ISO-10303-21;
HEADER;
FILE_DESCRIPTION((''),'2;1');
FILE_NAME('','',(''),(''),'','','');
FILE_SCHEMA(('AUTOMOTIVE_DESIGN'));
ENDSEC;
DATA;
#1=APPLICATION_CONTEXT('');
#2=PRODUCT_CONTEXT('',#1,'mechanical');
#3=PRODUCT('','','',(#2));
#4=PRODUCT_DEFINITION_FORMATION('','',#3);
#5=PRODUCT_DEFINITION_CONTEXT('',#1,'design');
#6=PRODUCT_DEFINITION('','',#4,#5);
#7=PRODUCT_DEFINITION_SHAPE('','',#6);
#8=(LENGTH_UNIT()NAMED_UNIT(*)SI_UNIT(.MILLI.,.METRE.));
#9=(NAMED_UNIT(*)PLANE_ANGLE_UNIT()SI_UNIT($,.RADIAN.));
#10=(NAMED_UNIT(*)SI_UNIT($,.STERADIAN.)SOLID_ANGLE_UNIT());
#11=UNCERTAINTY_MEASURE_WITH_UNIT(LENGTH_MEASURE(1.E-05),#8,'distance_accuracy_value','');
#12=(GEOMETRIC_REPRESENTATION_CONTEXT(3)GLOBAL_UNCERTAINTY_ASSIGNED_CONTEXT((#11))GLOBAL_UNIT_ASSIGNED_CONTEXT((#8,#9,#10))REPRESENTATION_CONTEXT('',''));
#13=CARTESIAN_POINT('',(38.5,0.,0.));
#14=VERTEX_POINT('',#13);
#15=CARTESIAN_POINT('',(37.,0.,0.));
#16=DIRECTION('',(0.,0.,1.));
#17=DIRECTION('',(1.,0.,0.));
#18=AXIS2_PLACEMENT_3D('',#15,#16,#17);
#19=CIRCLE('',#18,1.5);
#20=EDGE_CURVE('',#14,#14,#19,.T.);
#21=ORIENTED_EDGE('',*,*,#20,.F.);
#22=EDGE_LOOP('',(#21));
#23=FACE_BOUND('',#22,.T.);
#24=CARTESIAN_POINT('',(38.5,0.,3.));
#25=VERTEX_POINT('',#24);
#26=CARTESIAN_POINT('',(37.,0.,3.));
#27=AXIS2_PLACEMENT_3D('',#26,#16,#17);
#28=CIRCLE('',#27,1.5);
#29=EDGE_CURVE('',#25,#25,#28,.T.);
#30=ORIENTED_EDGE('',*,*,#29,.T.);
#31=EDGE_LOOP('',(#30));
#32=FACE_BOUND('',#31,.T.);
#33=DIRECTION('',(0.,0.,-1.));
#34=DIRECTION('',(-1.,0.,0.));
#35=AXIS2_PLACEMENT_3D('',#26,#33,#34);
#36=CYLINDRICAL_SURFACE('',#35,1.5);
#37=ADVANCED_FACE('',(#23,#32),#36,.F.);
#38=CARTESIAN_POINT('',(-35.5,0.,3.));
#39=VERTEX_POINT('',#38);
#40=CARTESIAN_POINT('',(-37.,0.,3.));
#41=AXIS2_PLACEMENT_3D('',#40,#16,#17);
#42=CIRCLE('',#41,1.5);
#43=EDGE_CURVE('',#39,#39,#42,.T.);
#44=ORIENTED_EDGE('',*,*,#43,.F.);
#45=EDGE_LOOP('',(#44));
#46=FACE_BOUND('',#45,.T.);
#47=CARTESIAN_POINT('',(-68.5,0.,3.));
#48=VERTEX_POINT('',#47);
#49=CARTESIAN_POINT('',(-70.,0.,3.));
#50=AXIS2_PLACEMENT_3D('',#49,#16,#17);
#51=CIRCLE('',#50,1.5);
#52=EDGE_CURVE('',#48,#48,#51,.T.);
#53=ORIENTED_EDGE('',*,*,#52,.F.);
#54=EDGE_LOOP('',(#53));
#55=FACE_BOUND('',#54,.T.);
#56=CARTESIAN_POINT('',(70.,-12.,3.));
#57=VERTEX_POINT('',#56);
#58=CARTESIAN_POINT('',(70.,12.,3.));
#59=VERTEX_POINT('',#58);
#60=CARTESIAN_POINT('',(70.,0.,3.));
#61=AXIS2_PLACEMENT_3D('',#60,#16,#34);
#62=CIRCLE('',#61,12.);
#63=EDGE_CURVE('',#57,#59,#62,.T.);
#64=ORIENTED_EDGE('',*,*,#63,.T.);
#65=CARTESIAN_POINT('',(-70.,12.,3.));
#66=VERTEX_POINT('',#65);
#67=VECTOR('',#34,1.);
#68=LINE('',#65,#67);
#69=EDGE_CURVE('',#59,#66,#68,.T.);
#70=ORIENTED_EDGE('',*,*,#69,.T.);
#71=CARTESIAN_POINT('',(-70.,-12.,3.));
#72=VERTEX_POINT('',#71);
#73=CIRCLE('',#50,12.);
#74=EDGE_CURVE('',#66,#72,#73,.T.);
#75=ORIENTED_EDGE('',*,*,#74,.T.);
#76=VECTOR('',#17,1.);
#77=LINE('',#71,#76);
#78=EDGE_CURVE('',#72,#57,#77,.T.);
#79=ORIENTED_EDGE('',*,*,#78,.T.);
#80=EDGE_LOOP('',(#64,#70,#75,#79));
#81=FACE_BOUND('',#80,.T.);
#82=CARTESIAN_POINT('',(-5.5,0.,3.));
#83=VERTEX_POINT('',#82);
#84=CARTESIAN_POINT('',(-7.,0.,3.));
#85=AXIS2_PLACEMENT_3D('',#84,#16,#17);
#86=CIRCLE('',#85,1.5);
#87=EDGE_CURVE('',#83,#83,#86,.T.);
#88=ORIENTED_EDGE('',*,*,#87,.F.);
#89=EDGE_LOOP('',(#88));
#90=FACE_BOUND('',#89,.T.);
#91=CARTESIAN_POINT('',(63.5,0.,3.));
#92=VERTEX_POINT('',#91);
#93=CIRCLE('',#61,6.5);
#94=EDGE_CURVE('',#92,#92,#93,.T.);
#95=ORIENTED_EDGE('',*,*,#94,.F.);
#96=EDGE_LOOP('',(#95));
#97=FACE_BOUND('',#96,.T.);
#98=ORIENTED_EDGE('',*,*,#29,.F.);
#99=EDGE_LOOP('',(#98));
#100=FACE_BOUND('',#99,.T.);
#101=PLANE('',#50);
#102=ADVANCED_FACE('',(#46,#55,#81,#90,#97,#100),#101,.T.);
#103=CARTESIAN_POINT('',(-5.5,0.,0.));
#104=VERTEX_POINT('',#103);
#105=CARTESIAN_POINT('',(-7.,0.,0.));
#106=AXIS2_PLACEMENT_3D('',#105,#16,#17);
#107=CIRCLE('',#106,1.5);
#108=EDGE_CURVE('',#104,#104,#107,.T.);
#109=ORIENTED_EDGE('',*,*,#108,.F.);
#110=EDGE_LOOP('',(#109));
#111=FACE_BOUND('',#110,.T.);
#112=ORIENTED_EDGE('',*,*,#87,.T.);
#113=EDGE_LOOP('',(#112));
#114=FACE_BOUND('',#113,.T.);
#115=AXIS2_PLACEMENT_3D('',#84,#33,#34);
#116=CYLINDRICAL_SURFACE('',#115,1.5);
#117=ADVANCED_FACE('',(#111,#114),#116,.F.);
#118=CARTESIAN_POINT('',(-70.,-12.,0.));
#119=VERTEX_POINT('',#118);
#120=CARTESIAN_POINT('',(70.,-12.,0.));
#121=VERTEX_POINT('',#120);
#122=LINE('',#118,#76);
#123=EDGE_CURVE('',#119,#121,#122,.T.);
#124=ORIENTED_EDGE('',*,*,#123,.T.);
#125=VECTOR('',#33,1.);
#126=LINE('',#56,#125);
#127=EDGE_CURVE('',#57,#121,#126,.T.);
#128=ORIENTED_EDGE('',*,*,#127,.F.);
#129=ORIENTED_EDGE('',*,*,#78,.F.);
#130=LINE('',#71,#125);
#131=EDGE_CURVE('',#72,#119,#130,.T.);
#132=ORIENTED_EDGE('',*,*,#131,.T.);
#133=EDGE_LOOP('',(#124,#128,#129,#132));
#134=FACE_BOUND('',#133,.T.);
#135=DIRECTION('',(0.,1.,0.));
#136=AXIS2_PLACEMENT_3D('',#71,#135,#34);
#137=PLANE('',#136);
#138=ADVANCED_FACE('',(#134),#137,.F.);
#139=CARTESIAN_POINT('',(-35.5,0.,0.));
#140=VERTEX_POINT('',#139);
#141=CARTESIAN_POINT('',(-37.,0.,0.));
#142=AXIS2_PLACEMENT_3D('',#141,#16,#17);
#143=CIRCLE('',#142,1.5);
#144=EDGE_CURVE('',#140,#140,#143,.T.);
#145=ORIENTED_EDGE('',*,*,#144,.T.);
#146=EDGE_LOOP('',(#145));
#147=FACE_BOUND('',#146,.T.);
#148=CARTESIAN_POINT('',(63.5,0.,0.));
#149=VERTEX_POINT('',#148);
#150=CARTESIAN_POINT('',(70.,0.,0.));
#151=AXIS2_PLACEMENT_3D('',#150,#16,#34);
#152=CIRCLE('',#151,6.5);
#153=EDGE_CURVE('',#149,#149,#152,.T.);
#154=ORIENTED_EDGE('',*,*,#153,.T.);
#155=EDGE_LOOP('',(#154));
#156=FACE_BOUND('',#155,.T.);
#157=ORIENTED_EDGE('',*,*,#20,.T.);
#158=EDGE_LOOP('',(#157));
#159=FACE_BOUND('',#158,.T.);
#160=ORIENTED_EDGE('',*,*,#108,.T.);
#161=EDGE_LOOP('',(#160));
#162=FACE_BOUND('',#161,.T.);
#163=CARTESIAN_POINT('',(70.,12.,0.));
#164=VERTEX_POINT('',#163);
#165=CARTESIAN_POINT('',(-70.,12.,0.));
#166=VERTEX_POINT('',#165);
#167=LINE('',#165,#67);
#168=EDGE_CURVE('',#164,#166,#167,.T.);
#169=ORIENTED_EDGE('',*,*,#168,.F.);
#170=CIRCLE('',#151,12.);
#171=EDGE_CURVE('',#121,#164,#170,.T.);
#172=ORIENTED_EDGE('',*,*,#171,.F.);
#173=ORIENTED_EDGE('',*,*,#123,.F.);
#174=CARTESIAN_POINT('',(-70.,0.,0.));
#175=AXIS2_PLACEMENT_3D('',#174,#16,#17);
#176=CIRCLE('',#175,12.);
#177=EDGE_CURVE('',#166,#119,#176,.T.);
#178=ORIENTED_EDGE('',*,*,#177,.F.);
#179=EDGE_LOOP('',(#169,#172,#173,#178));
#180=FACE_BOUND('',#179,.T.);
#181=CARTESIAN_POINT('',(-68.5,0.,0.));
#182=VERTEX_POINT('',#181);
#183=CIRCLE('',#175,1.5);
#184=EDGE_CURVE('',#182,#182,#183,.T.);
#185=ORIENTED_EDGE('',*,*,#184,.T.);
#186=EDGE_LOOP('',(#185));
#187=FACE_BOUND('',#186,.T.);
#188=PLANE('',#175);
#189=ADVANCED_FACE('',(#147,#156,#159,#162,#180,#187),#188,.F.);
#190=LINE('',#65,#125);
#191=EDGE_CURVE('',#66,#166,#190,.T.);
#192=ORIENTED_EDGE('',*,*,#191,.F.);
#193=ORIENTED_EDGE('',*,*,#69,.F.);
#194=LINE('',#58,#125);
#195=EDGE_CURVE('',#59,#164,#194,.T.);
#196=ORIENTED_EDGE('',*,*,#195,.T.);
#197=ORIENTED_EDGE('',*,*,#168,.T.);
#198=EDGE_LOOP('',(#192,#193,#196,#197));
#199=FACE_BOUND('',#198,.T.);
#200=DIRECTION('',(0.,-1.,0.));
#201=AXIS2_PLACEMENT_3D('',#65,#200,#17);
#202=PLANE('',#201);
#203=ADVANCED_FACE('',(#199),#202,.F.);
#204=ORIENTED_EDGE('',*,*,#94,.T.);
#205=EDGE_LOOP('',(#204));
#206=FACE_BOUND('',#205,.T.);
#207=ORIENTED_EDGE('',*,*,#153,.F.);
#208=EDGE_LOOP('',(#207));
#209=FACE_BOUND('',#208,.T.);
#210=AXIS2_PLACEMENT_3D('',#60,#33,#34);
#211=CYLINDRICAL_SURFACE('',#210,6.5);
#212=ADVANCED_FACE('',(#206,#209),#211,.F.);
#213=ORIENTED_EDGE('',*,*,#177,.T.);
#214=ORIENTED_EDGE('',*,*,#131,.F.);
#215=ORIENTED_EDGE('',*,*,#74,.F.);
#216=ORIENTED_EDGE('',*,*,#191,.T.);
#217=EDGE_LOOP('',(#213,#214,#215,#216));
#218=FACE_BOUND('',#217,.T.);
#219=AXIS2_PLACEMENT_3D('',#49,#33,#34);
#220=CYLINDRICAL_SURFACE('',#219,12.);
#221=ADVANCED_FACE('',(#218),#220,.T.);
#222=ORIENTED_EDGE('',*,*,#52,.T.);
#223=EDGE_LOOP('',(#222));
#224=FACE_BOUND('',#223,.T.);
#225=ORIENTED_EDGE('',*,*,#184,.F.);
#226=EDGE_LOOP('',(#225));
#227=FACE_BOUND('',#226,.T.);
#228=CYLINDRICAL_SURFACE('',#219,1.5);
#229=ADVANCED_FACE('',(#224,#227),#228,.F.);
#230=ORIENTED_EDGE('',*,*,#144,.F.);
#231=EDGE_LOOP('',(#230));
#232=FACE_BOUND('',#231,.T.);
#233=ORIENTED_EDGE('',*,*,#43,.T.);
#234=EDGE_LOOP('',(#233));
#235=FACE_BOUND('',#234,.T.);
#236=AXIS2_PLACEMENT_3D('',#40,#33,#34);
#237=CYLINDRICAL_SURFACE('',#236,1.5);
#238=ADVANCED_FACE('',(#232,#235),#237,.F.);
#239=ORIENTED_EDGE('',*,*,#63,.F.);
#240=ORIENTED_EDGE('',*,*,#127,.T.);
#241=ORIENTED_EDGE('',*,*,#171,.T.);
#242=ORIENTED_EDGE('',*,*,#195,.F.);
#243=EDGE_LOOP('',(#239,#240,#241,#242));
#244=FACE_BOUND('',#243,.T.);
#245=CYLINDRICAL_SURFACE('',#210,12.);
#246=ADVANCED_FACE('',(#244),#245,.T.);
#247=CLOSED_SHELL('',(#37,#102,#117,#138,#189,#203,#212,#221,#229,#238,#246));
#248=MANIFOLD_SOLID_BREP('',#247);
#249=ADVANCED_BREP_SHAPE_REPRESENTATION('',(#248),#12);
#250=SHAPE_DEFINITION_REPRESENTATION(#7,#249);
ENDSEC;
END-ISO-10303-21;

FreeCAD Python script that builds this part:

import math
import FreeCAD as App
import Part
import Sketcher

V = App.Vector
Q = App.Units.Quantity

doc = App.newDocument("Part")
body = doc.addObject("PartDesign::Body", "Body")

# Sketch on XY plane
sketch1 = body.newObject("Sketcher::SketchObject", "Sketch")
sketch1.AttachmentSupport = (doc.getObject("XY_Plane"), [""])
sketch1.MapMode = "FlatFace"
sketch1.addGeometry([
    Part.LineSegment(V(70, 12, 0), V(-70, 12, 0)),  # 0
    Part.ArcOfCircle(Part.Circle(V(-70, 0, 0), V(0, 0, 1), 12), math.radians(90), math.radians(270)),  # 1
    Part.LineSegment(V(-70, -12, 0), V(70, -12, 0)),  # 2
    Part.ArcOfCircle(Part.Circle(V(70, 0, 0), V(0, 0, 1), 12), math.radians(-90), math.radians(90)),  # 3
    Part.Circle(V(70, 0, 0), V(0, 0, 1), 6.5),  # 4
    Part.Circle(V(37, 0, 0), V(0, 0, 1), 1.5),  # 5
    Part.Circle(V(-7, 0, 0), V(0, 0, 1), 1.5),  # 6
    Part.Circle(V(-37, 0, 0), V(0, 0, 1), 1.5),  # 7
    Part.Circle(V(-70, 0, 0), V(0, 0, 1), 1.5),  # 8
], False)
sketch1.addConstraint([
    Sketcher.Constraint("Tangent", 0, 2, 1, 1),
    Sketcher.Constraint("Tangent", 1, 2, 2, 1),
    Sketcher.Constraint("Tangent", 2, 2, 3, 1),
    Sketcher.Constraint("Tangent", 3, 2, 0, 1),
    Sketcher.Constraint("Horizontal", 0),
    Sketcher.Constraint("Horizontal", 2),
    Sketcher.Constraint("Coincident", 4, 3, 3, 3),
    Sketcher.Constraint("Coincident", 8, 3, 1, 3),
    Sketcher.Constraint("Equal", 5, 6),
    Sketcher.Constraint("Equal", 6, 7),
    Sketcher.Constraint("Equal", 7, 8),
    Sketcher.Constraint("Symmetric", 1, 3, 3, 3, -1, 1),
    Sketcher.Constraint("Symmetric", 5, 3, 7, 3, -1, 1),
    Sketcher.Constraint("PointOnObject", 5, 3, -1),
    Sketcher.Constraint("PointOnObject", 6, 3, -1),
    Sketcher.Constraint("Diameter", 4, Q("13 mm")),
    Sketcher.Constraint("Diameter", 5, Q("3 mm")),
    Sketcher.Constraint("Radius", 1, Q("12 mm")),
    Sketcher.Constraint("DistanceX", 0, 2, 0, 1, Q("140 mm")),
    Sketcher.Constraint("DistanceX", -1, 1, 5, 3, Q("37 mm")),
    Sketcher.Constraint("DistanceX", 6, 3, -1, 1, Q("7 mm")),
])
pad1 = body.newObject("PartDesign::Pad", "Pad")
pad1.Profile = sketch1
pad1.Length = 3

doc.recompute()
